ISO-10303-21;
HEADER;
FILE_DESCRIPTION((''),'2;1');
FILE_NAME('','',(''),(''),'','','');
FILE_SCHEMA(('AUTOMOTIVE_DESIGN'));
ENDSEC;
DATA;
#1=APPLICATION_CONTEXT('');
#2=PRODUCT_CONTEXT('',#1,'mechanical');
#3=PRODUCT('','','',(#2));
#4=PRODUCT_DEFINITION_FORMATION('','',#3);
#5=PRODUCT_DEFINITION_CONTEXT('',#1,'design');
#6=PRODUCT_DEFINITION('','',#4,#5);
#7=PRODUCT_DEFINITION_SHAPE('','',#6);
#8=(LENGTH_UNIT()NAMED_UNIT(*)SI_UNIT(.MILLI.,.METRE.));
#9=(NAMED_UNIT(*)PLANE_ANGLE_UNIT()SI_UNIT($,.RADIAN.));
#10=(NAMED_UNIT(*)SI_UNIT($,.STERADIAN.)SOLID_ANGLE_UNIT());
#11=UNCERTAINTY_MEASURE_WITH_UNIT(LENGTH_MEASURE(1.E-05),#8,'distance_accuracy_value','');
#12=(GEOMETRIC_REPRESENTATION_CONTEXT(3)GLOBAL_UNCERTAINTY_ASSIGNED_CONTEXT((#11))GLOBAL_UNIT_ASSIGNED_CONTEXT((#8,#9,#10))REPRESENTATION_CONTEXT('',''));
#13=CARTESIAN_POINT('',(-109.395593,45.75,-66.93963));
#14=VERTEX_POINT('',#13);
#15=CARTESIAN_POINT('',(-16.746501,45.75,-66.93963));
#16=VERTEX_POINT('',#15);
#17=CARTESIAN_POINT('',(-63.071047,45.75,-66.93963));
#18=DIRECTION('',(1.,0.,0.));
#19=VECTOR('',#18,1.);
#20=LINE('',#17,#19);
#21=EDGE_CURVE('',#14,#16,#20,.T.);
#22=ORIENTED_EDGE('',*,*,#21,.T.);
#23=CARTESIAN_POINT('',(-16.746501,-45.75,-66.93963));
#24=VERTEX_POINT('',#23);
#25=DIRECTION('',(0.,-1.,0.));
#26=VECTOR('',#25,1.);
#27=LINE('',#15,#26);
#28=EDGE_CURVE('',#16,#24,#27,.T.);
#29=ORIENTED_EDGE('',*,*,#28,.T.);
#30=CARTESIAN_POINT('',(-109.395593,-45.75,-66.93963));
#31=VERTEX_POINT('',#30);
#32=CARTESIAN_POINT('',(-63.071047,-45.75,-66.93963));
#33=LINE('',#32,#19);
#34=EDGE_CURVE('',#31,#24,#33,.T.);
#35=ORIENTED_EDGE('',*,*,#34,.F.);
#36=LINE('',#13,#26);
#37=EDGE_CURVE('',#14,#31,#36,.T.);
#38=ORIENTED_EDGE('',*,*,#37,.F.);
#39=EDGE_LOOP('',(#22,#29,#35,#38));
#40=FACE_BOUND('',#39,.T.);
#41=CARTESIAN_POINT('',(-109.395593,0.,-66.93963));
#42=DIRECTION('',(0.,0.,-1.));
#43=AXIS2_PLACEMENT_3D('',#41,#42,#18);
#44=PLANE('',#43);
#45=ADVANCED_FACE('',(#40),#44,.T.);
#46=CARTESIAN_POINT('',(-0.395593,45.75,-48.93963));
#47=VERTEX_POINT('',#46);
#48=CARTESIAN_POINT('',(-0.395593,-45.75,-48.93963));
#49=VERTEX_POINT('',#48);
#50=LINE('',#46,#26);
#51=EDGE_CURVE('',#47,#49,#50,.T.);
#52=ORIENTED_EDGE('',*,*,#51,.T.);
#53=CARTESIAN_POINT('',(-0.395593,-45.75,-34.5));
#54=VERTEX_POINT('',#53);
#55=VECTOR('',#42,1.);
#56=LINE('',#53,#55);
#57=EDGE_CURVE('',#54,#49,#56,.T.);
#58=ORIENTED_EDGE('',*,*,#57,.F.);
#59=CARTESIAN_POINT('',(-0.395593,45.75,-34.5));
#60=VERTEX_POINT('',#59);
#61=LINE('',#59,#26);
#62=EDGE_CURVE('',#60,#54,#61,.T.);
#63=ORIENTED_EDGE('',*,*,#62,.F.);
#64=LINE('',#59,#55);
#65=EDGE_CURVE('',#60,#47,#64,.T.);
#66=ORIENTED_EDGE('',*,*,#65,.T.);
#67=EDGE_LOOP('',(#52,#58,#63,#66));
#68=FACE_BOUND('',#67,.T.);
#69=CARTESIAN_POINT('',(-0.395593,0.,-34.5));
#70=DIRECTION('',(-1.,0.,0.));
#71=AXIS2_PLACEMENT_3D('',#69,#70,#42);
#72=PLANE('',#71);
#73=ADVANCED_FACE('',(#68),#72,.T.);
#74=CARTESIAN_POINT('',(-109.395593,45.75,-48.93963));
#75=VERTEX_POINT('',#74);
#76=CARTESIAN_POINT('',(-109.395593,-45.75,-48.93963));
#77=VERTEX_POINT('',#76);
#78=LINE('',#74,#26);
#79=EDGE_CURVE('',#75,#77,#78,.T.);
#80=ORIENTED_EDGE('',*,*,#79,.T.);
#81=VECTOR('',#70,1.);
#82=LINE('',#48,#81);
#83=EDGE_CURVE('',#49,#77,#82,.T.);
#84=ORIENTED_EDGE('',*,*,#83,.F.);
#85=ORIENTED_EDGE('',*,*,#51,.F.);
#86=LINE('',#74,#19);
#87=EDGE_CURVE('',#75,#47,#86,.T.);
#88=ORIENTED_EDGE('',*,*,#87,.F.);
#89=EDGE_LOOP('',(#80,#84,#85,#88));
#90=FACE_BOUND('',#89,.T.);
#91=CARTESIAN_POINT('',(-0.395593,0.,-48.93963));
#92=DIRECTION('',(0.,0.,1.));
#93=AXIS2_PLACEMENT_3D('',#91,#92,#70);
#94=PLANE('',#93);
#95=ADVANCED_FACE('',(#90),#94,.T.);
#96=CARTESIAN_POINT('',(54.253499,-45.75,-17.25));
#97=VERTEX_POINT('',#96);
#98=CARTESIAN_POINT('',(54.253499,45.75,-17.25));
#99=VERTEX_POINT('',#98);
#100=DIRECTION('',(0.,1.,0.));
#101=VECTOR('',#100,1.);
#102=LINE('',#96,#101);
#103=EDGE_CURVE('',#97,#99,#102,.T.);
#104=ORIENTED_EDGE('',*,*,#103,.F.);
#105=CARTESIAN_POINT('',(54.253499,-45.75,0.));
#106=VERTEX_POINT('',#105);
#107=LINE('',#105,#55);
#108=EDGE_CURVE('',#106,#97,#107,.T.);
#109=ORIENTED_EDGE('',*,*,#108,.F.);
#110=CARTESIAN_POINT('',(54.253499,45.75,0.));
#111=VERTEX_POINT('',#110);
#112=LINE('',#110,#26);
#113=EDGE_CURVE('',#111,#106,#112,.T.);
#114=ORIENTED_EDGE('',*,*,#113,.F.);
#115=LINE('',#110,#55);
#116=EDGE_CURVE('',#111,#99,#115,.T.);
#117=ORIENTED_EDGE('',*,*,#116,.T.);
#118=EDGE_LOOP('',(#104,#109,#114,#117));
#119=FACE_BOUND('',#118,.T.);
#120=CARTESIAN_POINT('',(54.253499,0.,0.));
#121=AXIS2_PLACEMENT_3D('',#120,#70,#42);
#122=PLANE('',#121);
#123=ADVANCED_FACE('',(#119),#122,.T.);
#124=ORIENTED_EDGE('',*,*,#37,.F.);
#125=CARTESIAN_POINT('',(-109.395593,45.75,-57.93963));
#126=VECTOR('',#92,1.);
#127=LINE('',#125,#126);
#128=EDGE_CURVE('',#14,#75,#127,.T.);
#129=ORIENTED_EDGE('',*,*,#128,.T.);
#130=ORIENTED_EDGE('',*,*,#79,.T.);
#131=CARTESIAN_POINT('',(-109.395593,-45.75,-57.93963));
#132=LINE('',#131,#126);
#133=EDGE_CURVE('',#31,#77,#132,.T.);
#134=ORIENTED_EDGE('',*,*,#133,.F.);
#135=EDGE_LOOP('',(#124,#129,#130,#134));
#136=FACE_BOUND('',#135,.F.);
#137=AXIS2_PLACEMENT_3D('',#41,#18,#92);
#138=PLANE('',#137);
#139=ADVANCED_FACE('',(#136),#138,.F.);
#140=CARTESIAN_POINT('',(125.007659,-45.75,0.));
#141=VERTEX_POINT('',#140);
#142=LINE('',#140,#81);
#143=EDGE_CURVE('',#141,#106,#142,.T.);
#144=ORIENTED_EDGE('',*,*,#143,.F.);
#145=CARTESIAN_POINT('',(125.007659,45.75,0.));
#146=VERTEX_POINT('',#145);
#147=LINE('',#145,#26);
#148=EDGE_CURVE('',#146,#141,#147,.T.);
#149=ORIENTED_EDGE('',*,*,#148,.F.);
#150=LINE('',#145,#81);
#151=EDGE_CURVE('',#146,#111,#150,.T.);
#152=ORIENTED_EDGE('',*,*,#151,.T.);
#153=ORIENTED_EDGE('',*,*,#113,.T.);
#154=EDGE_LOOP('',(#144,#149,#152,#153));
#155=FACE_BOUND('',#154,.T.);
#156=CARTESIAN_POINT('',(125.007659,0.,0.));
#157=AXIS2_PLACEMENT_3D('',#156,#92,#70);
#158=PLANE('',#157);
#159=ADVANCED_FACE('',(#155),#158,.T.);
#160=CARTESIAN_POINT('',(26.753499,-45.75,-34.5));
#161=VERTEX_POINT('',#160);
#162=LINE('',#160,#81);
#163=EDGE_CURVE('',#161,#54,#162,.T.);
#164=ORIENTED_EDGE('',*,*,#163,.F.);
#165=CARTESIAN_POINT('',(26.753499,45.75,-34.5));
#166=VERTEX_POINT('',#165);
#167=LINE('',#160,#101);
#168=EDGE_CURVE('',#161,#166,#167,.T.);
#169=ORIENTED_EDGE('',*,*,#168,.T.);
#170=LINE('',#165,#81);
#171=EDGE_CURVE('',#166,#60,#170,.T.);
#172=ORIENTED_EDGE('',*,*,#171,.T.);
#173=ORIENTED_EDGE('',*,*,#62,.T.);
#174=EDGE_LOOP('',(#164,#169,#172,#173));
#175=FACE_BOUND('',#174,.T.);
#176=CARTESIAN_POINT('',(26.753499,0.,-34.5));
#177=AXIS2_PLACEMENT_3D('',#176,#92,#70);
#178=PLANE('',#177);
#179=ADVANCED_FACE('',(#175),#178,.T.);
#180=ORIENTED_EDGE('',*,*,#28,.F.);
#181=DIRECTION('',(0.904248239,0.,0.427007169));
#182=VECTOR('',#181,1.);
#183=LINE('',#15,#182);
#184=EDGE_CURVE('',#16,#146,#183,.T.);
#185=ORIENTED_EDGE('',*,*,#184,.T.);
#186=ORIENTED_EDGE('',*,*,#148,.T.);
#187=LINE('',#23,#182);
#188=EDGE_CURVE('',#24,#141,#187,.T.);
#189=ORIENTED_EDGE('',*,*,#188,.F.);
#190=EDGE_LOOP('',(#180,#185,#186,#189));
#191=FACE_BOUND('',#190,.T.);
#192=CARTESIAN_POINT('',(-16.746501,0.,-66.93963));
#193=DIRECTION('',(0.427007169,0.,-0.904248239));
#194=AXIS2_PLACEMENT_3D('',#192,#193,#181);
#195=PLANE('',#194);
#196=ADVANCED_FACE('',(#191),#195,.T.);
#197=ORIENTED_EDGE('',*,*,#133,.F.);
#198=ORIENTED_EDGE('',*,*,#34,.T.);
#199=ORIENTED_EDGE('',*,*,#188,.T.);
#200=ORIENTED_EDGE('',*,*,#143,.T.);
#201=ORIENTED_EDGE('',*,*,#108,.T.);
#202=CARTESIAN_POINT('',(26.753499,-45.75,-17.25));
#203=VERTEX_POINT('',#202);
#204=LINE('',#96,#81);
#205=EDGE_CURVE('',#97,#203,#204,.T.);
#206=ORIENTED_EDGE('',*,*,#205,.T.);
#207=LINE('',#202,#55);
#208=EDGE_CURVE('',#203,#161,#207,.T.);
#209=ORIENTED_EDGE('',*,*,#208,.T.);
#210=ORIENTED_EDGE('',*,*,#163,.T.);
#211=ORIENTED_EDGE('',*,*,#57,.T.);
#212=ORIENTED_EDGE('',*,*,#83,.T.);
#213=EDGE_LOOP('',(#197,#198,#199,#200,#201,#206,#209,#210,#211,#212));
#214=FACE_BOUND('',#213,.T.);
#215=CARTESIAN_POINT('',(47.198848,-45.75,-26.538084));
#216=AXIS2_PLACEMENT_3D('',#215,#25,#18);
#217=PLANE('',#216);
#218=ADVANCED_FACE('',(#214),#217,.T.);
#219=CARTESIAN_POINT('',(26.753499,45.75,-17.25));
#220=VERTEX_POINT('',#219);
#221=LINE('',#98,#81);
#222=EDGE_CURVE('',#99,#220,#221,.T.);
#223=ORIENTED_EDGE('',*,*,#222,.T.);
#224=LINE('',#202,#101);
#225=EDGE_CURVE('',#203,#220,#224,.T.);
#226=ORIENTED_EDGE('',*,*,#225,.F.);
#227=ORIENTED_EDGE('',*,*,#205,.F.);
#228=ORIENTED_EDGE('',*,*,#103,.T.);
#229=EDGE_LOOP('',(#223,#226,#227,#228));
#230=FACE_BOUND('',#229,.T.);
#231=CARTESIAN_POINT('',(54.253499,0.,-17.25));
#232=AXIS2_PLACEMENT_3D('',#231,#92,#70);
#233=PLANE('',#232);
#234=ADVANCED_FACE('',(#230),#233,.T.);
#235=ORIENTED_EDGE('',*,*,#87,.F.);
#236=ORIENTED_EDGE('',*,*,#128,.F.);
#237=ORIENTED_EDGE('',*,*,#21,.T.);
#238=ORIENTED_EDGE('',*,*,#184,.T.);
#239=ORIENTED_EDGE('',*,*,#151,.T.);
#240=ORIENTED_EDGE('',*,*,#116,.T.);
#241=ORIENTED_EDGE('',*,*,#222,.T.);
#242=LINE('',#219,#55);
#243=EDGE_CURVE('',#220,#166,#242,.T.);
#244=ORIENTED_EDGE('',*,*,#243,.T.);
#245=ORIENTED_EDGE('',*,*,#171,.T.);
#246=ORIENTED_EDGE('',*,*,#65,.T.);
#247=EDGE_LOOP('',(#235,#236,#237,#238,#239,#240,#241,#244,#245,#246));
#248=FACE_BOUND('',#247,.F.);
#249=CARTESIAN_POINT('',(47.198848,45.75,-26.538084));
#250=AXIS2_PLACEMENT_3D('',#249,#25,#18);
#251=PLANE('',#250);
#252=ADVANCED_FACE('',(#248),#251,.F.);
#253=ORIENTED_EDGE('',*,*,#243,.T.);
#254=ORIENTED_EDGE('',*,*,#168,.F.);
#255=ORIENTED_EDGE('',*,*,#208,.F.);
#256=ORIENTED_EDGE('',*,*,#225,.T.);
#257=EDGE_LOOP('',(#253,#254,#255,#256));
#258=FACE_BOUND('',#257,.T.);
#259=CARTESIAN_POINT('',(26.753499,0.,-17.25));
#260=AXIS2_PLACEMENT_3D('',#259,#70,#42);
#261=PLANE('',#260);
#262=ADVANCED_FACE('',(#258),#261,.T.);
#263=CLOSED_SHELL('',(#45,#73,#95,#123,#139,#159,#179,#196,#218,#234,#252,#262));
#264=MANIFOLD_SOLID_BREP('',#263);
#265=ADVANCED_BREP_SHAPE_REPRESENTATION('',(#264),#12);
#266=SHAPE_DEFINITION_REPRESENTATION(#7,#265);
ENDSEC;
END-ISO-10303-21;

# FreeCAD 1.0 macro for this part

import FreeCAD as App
import Part
import Sketcher
from FreeCAD import Vector
Q = App.Units.Quantity


def add_polygon(sketch, points):
    """Adds a closed chain of lines whose ends are joined by coincident constraints."""
    first, n = sketch.GeometryCount, len(points)
    for a, b in zip(points, points[1:] + points[:1]):
        sketch.addGeometry(Part.LineSegment(App.Vector(*a, 0), App.Vector(*b, 0)), False)
    for i in range(n):
        sketch.addConstraint(Sketcher.Constraint("Coincident", first + i, 2, first + (i + 1) % n, 1))

doc = App.newDocument("Part")
body = doc.addObject("PartDesign::Body", "Body")

sketch1 = doc.addObject("Sketcher::SketchObject", "Sketch")
body.addObject(sketch1)
sketch1.AttachmentSupport = (doc.XZ_Plane, [""])
sketch1.MapMode = "FlatFace"
add_polygon(sketch1, [(27, -34), (0, -34), (0, -49), (-17, -49), (-17, -67), (125, 0), (54, 0), (54, -17), (27, -17)])
sketch1.addConstraint([
    Sketcher.Constraint("Horizontal", 0),
    Sketcher.Constraint("Vertical", 1),
    Sketcher.Constraint("Horizontal", 2),
    Sketcher.Constraint("Vertical", 3),
    Sketcher.Constraint("Horizontal", 5),
    Sketcher.Constraint("Vertical", 6),
    Sketcher.Constraint("Horizontal", 7),
    Sketcher.Constraint("Vertical", 8),
    Sketcher.Constraint("PointOnObject", 4, 2, -1),
    Sketcher.Constraint("Equal", 6, 8),
    Sketcher.Constraint("DistanceY", 3, 2, 3, 1, Q("18 mm")),
    Sketcher.Constraint("DistanceX", 7, 2, 7, 1, Q("27.5 mm")),
    Sketcher.Constraint("DistanceX", 2, 2, 5, 2, Q("71 mm")),
    Sketcher.Constraint("DistanceY", 6, 2, 6, 1, Q("17.25 mm")),
    Sketcher.Constraint("DistanceX", 5, 2, 5, 1, Q("70.75416 mm")),
    Sketcher.Constraint("DistanceY", 1, 2, 1, 1, Q("14.43963 mm")),
    Sketcher.Constraint("DistanceX", 2, 2, -1, 1, Q("16.746501 mm")),
    Sketcher.Constraint("DistanceX", 0, 2, 0, 1, Q("27.149092 mm")),
])
pad1 = doc.addObject("PartDesign::Pad", "Pad")
body.addObject(pad1)
pad1.Profile = sketch1
pad1.Length = 91.5
pad1.Midplane = True

sketch2 = doc.addObject("Sketcher::SketchObject", "Sketch001")
body.addObject(sketch2)
sketch2.AttachmentSupport = (doc.XZ_Plane, [""])
sketch2.MapMode = "FlatFace"
add_polygon(sketch2, [(27, -34), (0, -34), (0, -49), (-109, -49), (-109, -67), (-17, -67), (125, 0), (54, 0), (54, -17), (27, -17)])
sketch2.addConstraint([
    Sketcher.Constraint("Horizontal", 0),
    Sketcher.Constraint("Vertical", 1),
    Sketcher.Constraint("Horizontal", 2),
    Sketcher.Constraint("Vertical", 3),
    Sketcher.Constraint("Horizontal", 4),
    Sketcher.Constraint("Horizontal", 6),
    Sketcher.Constraint("Vertical", 7),
    Sketcher.Constraint("Horizontal", 8),
    Sketcher.Constraint("Vertical", 9),
    Sketcher.Constraint("PointOnObject", 5, 2, -1),
    Sketcher.Constraint("Equal", 7, 9),
    Sketcher.Constraint("DistanceX", 2, 2, 2, 1, Q("109 mm")),
    Sketcher.Constraint("DistanceY", 3, 2, 3, 1, Q("18 mm")),
    Sketcher.Constraint("DistanceX", 8, 2, 8, 1, Q("27.5 mm")),
    Sketcher.Constraint("DistanceX", 4, 2, 6, 2, Q("71 mm")),
    Sketcher.Constraint("DistanceY", 7, 2, 7, 1, Q("17.25 mm")),
    Sketcher.Constraint("DistanceX", 6, 2, 6, 1, Q("70.75416 mm")),
    Sketcher.Constraint("DistanceY", 1, 2, 1, 1, Q("14.43963 mm")),
    Sketcher.Constraint("DistanceX", 4, 2, -1, 1, Q("16.746501 mm")),
    Sketcher.Constraint("DistanceX", 0, 2, 0, 1, Q("27.149092 mm")),
])
pad2 = doc.addObject("PartDesign::Pad", "Pad001")
body.addObject(pad2)
pad2.Profile = sketch2
pad2.Length = 91.5
pad2.Midplane = True

doc.recompute()
